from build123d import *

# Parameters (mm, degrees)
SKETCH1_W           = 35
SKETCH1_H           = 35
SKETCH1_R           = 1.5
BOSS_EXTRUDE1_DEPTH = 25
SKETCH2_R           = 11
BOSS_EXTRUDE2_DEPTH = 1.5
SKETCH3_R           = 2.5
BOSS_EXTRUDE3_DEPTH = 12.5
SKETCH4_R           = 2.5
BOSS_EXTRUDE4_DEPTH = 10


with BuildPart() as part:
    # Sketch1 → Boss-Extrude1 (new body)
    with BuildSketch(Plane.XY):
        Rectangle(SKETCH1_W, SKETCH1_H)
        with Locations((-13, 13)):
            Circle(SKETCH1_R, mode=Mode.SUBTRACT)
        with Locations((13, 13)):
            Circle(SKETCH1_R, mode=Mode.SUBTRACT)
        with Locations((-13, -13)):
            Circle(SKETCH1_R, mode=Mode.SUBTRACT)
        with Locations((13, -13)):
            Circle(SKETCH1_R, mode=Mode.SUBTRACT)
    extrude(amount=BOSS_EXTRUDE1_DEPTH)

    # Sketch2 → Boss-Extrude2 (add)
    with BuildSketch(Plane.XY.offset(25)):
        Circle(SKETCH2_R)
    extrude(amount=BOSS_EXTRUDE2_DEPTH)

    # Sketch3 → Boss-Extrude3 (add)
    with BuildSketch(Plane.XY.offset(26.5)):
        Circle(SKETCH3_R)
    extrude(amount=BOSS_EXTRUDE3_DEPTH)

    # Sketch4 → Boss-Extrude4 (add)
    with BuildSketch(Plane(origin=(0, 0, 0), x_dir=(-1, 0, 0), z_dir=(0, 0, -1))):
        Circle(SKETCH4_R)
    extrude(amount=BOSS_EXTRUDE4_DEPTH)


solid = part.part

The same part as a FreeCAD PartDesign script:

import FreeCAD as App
import Part
import Sketcher

doc = App.newDocument("Part")
params = doc.addObject("Spreadsheet::Sheet", "Params")
for row, (alias, value) in enumerate([
    ("sketch1_diameter", "3 mm"),
    ("sketch1_width", "35 mm"),
    ("pad1_length", "25 mm"),
    ("sketch2_diameter", "22 mm"),
    ("pad2_length", "1.5 mm"),
    ("sketch3_diameter", "5 mm"),
    ("pad3_length", "12.5 mm"),
    ("sketch4_diameter", "5 mm"),
    ("pad4_length", "10 mm"),
], start=1):
    params.set(f"A{row}", alias)
    params.set(f"B{row}", "=" + value)
    params.setAlias(f"B{row}", alias)

body = doc.addObject("PartDesign::Body", "Body")

# Sketch on XY plane
sketch1 = body.newObject("Sketcher::SketchObject", "Sketch")
sketch1.AttachmentSupport = (doc.getObject("XY_Plane"), [""])
sketch1.MapMode = "FlatFace"
sketch1.addGeometry([
    Part.LineSegment(App.Vector(-17.5, 17.5, 0), App.Vector(-17.5, -17.5, 0)),  # 0
    Part.LineSegment(App.Vector(-17.5, -17.5, 0), App.Vector(17.5, -17.5, 0)),  # 1
    Part.LineSegment(App.Vector(17.5, -17.5, 0), App.Vector(17.5, 17.5, 0)),  # 2
    Part.LineSegment(App.Vector(17.5, 17.5, 0), App.Vector(-17.5, 17.5, 0)),  # 3
    Part.Circle(App.Vector(-13, -13, 0), App.Vector(0, 0, 1), 1.5),  # 4
    Part.Circle(App.Vector(13, -13, 0), App.Vector(0, 0, 1), 1.5),  # 5
    Part.Circle(App.Vector(-13, 13, 0), App.Vector(0, 0, 1), 1.5),  # 6
    Part.Circle(App.Vector(13, 13, 0), App.Vector(0, 0, 1), 1.5),  # 7
], False)
sketch1.addConstraint([
    Sketcher.Constraint("Coincident", 0, 2, 1, 1),
    Sketcher.Constraint("Coincident", 1, 2, 2, 1),
    Sketcher.Constraint("Coincident", 2, 2, 3, 1),
    Sketcher.Constraint("Coincident", 3, 2, 0, 1),
    Sketcher.Constraint("Vertical", 0),
    Sketcher.Constraint("Horizontal", 1),
    Sketcher.Constraint("Vertical", 2),
    Sketcher.Constraint("Horizontal", 3),
    Sketcher.Constraint("Equal", 4, 5),
    Sketcher.Constraint("Equal", 5, 6),
    Sketcher.Constraint("Equal", 6, 7),
    Sketcher.Constraint("Symmetric", 5, 3, 6, 3, -1, 1),
    Sketcher.Constraint("Symmetric", 4, 3, 7, 3, -1, 1),
    Sketcher.Constraint("Symmetric", 0, 2, 2, 2, -1, 1),
    Sketcher.Constraint("Symmetric", 4, 3, 5, 3, -2),
    Sketcher.Constraint("Equal", 3, 0),
    Sketcher.Constraint("Diameter", 4, 3.0),
    Sketcher.Constraint("DistanceX", 1, 1, 1, 2, 35.0),
    Sketcher.Constraint("DistanceX", 4, 3, -1, 1, 13.0),
    Sketcher.Constraint("DistanceY", 4, 3, -1, 1, 13.0),
])
sketch1.setExpression("Constraints[16]", "Params.sketch1_diameter")
sketch1.setExpression("Constraints[17]", "Params.sketch1_width")
pad1 = body.newObject("PartDesign::Pad", "Pad")
pad1.Profile = sketch1
pad1.setExpression("Length", "Params.pad1_length")

# Sketch on XY plane
sketch2 = body.newObject("Sketcher::SketchObject", "Sketch001")
sketch2.AttachmentSupport = (doc.getObject("XY_Plane"), [""])
sketch2.MapMode = "FlatFace"
sketch2.AttachmentOffset = App.Placement(App.Vector(0, 0, 25), App.Rotation())
sketch2.addGeometry(Part.Circle(App.Vector(0, 0, 0), App.Vector(0, 0, 1), 11), False)
sketch2.addConstraint([
    Sketcher.Constraint("Coincident", 0, 3, -1, 1),
    Sketcher.Constraint("Diameter", 0, 22.0),
])
sketch2.setExpression("Constraints[1]", "Params.sketch2_diameter")
pad2 = body.newObject("PartDesign::Pad", "Pad001")
pad2.Profile = sketch2
pad2.setExpression("Length", "Params.pad2_length")

# Sketch on XY plane
sketch3 = body.newObject("Sketcher::SketchObject", "Sketch002")
sketch3.AttachmentSupport = (doc.getObject("XY_Plane"), [""])
sketch3.MapMode = "FlatFace"
sketch3.AttachmentOffset = App.Placement(App.Vector(0, 0, 26.5), App.Rotation())
sketch3.addGeometry(Part.Circle(App.Vector(0, 0, 0), App.Vector(0, 0, 1), 2.5), False)
sketch3.addConstraint([
    Sketcher.Constraint("Coincident", 0, 3, -1, 1),
    Sketcher.Constraint("Diameter", 0, 5.0),
])
sketch3.setExpression("Constraints[1]", "Params.sketch3_diameter")
pad3 = body.newObject("PartDesign::Pad", "Pad002")
pad3.Profile = sketch3
pad3.setExpression("Length", "Params.pad3_length")

# Sketch on XY plane
sketch4 = body.newObject("Sketcher::SketchObject", "Sketch003")
sketch4.AttachmentSupport = (doc.getObject("XY_Plane"), [""])
sketch4.MapMode = "FlatFace"
sketch4.addGeometry(Part.Circle(App.Vector(0, 0, 0), App.Vector(0, 0, 1), 2.5), False)
sketch4.addConstraint([
    Sketcher.Constraint("Coincident", 0, 3, -1, 1),
    Sketcher.Constraint("Diameter", 0, 5.0),
])
sketch4.setExpression("Constraints[1]", "Params.sketch4_diameter")
pad4 = body.newObject("PartDesign::Pad", "Pad003")
pad4.Profile = sketch4
pad4.setExpression("Length", "Params.pad4_length")
pad4.Reversed = True

doc.recompute()
